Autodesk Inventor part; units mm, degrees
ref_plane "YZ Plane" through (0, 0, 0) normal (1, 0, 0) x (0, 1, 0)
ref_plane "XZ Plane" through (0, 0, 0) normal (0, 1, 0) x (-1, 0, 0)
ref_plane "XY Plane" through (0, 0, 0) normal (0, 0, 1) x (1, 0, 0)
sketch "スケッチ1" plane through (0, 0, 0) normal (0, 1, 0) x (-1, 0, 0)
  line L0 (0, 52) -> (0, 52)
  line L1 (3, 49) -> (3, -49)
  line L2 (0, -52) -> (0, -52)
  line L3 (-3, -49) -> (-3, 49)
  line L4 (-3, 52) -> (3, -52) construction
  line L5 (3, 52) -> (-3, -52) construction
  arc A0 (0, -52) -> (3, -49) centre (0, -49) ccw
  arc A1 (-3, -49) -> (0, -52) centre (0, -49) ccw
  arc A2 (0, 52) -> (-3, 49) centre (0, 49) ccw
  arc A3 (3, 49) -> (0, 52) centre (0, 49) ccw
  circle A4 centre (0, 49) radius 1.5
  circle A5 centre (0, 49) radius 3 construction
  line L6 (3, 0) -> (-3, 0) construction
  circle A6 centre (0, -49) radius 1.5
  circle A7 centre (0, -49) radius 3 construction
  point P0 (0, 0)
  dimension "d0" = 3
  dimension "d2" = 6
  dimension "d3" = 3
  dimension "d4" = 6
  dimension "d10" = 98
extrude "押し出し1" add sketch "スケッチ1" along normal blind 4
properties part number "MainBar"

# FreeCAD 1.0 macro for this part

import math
import FreeCAD as App
import Part
import Sketcher
from FreeCAD import Vector
Q = App.Units.Quantity

doc = App.newDocument("Part")
params = doc.addObject("Spreadsheet::Sheet", "Params")
for row, (alias, value) in enumerate([
    ("sketch1_diameter", "3 mm"),
    ("sketch1_radius", "3 mm"),
    ("sketch1_height", "98 mm"),
    ("pad1_length", "4 mm"),
], start=1):
    params.set(f"A{row}", alias)
    params.set(f"B{row}", "=" + value)
    params.setAlias(f"B{row}", alias)

body = doc.addObject("PartDesign::Body", "Body")

# Sketch on XZ plane
sketch1 = doc.addObject("Sketcher::SketchObject", "Sketch")
body.addObject(sketch1)
sketch1.AttachmentSupport = (doc.XZ_Plane, [""])
sketch1.MapMode = "FlatFace"
sketch1.addGeometry(Part.LineSegment(Vector(-3, -49, 0), Vector(-3, 49, 0)), False)
sketch1.addGeometry(Part.ArcOfCircle(Part.Circle(Vector(0, 49, 0), Vector(0, 0, 1), 3), math.radians(0), math.radians(180)), False)
sketch1.addGeometry(Part.LineSegment(Vector(3, 49, 0), Vector(3, -49, 0)), False)
sketch1.addGeometry(Part.ArcOfCircle(Part.Circle(Vector(0, -49, 0), Vector(0, 0, 1), 3), math.radians(180), math.radians(360)), False)
sketch1.addGeometry(Part.Circle(Vector(0, -49, 0), Vector(0, 0, 1), 1.5), False)
sketch1.addGeometry(Part.Circle(Vector(0, 49, 0), Vector(0, 0, 1), 1.5), False)
sketch1.addConstraint(Sketcher.Constraint("Tangent", 0, 2, 1, 2))
sketch1.addConstraint(Sketcher.Constraint("Tangent", 1, 1, 2, 1))
sketch1.addConstraint(Sketcher.Constraint("Tangent", 2, 2, 3, 2))
sketch1.addConstraint(Sketcher.Constraint("Tangent", 3, 1, 0, 1))
sketch1.addConstraint(Sketcher.Constraint("Vertical", 0))
sketch1.addConstraint(Sketcher.Constraint("Vertical", 2))
sketch1.addConstraint(Sketcher.Constraint("Coincident", 4, 3, 3, 3))
sketch1.addConstraint(Sketcher.Constraint("Coincident", 5, 3, 1, 3))
sketch1.addConstraint(Sketcher.Constraint("Equal", 4, 5))
sketch1.addConstraint(Sketcher.Constraint("Symmetric", 1, 3, 3, 3, -1, 1))
sketch1.addConstraint(Sketcher.Constraint("Diameter", 4, Q("3 mm")))
sketch1.addConstraint(Sketcher.Constraint("Radius", 1, Q("3 mm")))
sketch1.addConstraint(Sketcher.Constraint("DistanceY", 0, 1, 0, 2, Q("98 mm")))
sketch1.setExpression("Constraints[10]", "Params.sketch1_diameter")
sketch1.setExpression("Constraints[11]", "Params.sketch1_radius")
sketch1.setExpression("Constraints[12]", "Params.sketch1_height")
pad1 = doc.addObject("PartDesign::Pad", "Pad")
body.addObject(pad1)
pad1.Profile = sketch1
pad1.setExpression("Length", "Params.pad1_length")
pad1.Reversed = True

doc.recompute()
